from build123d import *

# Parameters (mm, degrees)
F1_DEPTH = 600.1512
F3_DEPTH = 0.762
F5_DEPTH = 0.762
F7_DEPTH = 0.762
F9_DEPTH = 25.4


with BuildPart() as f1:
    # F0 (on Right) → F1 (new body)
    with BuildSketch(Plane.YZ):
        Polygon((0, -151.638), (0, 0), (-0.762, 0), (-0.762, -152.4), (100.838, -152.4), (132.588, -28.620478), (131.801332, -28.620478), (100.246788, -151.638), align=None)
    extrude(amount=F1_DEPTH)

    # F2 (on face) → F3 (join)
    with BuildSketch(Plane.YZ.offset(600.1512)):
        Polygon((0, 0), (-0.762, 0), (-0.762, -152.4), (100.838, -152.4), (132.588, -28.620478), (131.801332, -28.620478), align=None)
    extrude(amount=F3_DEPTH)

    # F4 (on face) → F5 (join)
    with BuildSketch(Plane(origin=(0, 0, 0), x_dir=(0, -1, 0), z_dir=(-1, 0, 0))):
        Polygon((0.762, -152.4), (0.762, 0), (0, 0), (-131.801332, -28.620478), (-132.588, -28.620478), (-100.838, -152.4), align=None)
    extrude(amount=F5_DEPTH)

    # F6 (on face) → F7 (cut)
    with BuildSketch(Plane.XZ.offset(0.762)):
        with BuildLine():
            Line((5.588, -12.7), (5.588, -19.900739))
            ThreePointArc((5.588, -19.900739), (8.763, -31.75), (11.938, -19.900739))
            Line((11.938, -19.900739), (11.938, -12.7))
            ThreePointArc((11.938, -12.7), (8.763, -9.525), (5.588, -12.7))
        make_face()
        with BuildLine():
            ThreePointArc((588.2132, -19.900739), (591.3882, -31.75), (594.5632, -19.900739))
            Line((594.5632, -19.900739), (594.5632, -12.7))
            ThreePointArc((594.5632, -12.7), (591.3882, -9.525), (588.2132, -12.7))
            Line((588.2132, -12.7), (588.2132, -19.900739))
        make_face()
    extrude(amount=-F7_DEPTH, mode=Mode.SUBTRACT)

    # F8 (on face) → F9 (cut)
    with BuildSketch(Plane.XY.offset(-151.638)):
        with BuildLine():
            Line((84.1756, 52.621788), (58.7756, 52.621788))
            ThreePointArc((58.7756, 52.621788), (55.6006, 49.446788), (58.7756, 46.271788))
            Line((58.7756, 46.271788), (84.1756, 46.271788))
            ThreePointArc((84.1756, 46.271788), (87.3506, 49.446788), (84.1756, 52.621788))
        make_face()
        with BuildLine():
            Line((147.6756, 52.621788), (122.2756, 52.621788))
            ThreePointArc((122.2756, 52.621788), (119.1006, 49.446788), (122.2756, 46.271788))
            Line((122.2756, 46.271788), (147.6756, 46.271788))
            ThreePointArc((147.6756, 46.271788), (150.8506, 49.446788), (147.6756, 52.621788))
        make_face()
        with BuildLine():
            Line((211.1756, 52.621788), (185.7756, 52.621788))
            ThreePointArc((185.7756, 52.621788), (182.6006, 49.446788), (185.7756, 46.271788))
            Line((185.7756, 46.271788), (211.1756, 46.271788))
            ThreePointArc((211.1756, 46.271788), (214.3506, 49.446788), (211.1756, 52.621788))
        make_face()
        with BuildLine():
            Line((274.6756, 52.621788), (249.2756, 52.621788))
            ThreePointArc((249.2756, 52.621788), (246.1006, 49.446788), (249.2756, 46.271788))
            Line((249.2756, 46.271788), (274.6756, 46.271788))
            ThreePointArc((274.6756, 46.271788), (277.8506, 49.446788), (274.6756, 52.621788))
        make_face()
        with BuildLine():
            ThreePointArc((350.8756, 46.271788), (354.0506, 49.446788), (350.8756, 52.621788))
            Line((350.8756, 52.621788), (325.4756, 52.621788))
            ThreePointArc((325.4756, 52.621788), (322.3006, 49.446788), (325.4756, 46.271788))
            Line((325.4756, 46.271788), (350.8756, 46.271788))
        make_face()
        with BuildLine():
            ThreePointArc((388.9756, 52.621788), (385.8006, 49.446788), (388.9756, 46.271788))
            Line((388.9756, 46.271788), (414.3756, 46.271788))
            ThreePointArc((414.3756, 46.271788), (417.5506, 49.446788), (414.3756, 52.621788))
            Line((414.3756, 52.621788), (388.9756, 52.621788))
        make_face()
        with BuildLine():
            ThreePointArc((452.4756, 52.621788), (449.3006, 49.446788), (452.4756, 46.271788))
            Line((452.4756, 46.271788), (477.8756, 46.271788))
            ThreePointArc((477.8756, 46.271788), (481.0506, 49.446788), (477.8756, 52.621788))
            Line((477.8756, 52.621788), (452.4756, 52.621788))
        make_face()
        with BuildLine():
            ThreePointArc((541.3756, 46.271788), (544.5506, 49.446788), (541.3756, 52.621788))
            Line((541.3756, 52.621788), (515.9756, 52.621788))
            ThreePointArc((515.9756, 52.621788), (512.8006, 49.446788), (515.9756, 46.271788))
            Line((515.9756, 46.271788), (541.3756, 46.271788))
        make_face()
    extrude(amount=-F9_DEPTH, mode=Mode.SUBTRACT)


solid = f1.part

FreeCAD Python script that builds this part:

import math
import FreeCAD as App
import Part
import Sketcher
Q = App.Units.Quantity

doc = App.newDocument("Part")
params = doc.addObject("Spreadsheet::Sheet", "Params")
for row, (alias, value) in enumerate([
    ("sketch1_width", "4 in"),
    ("sketch1_height", "6 in"),
    ("sketch1_length", "5 in"),
    ("sketch1_width2", "0.03 in"),
    ("sketch1_height2", "5.97 in"),
    ("pad1_length", "23.628 in"),
    ("sketch2_width", "4 in"),
    ("sketch2_height", "6 in"),
    ("sketch2_width2", "0.03 in"),
    ("pad2_length", "0.03 in"),
    ("sketch3_width", "4 in"),
    ("sketch3_height", "6 in"),
    ("sketch3_width2", "0.03 in"),
    ("pad3_length", "0.03 in"),
    ("sketch4_radius", "0.25 in"),
    ("sketch4_radius2", "0.125 in"),
    ("pocket1_length", "0.03 in"),
    ("sketch5_width", "1 in"),
    ("sketch5_radius", "0.125 in"),
    ("pocket2_length", "1 in"),
], start=1):
    params.set(f"A{row}", alias)
    params.set(f"B{row}", "=" + value)
    params.setAlias(f"B{row}", alias)

body = doc.addObject("PartDesign::Body", "Body")

sketch1 = body.newObject("Sketcher::SketchObject", "Sketch")
sketch1.AttachmentSupport = (doc.getObject("YZ_Plane"), [""])
sketch1.MapMode = "FlatFace"
sketch1.addGeometry([
    Part.LineSegment(App.Vector(0, -151.638, 0), App.Vector(0, 0, 0)),
    Part.LineSegment(App.Vector(0, 0, 0), App.Vector(-0.762, 0, 0)),
    Part.LineSegment(App.Vector(-0.762, 0, 0), App.Vector(-0.762, -152.4, 0)),
    Part.LineSegment(App.Vector(-0.762, -152.4, 0), App.Vector(100.838, -152.4, 0)),
    Part.LineSegment(App.Vector(100.838, -152.4, 0), App.Vector(132.588, -28.620478, 0)),
    Part.LineSegment(App.Vector(132.588, -28.620478, 0), App.Vector(131.801332, -28.620478, 0)),
    Part.LineSegment(App.Vector(131.801332, -28.620478, 0), App.Vector(100.246788, -151.638, 0)),
    Part.LineSegment(App.Vector(100.246788, -151.638, 0), App.Vector(0, -151.638, 0)),
], False)
sketch1.addConstraint([
    Sketcher.Constraint("Coincident", 0, 2, 1, 1),
    Sketcher.Constraint("Coincident", 1, 2, 2, 1),
    Sketcher.Constraint("Coincident", 2, 2, 3, 1),
    Sketcher.Constraint("Coincident", 3, 2, 4, 1),
    Sketcher.Constraint("Coincident", 4, 2, 5, 1),
    Sketcher.Constraint("Coincident", 5, 2, 6, 1),
    Sketcher.Constraint("Coincident", 6, 2, 7, 1),
    Sketcher.Constraint("Coincident", 7, 2, 0, 1),
    Sketcher.Constraint("Vertical", 0),
    Sketcher.Constraint("Horizontal", 1),
    Sketcher.Constraint("Vertical", 2),
    Sketcher.Constraint("Horizontal", 3),
    Sketcher.Constraint("Horizontal", 5),
    Sketcher.Constraint("Horizontal", 7),
    Sketcher.Constraint("Coincident", 0, 2, -1, 1),
    Sketcher.Constraint("Parallel", 4, 6),
    Sketcher.Constraint("DistanceX", 3, 1, 3, 2, Q("4 in")),
    Sketcher.Constraint("DistanceY", 2, 2, 2, 1, Q("6 in")),
    Sketcher.Constraint("Distance", 6, Q("5 in")),
    Sketcher.Constraint("DistanceX", 1, 2, 1, 1, Q("0.03 in")),
    Sketcher.Constraint("DistanceY", 0, 1, 0, 2, Q("5.97 in")),
    Sketcher.Constraint("DistanceX", -1, 1, 4, 2, Q("5.22 in")),
    Sketcher.Constraint("DistanceX", 5, 2, 5, 1, 0.786668),
])
sketch1.setExpression("Constraints[16]", "Params.sketch1_width")
sketch1.setExpression("Constraints[17]", "Params.sketch1_height")
sketch1.setExpression("Constraints[18]", "Params.sketch1_length")
sketch1.setExpression("Constraints[19]", "Params.sketch1_width2")
sketch1.setExpression("Constraints[20]", "Params.sketch1_height2")
pad1 = body.newObject("PartDesign::Pad", "Pad")
pad1.Profile = sketch1
pad1.setExpression("Length", "Params.pad1_length")

sketch2 = body.newObject("Sketcher::SketchObject", "Sketch001")
sketch2.AttachmentSupport = (doc.getObject("YZ_Plane"), [""])
sketch2.MapMode = "FlatFace"
sketch2.AttachmentOffset = App.Placement(App.Vector(0, 0, 23.628 * 25.4), App.Rotation())
sketch2.addGeometry([
    Part.LineSegment(App.Vector(0, 0, 0), App.Vector(-0.762, 0, 0)),
    Part.LineSegment(App.Vector(-0.762, 0, 0), App.Vector(-0.762, -152.4, 0)),
    Part.LineSegment(App.Vector(-0.762, -152.4, 0), App.Vector(100.838, -152.4, 0)),
    Part.LineSegment(App.Vector(100.838, -152.4, 0), App.Vector(132.588, -28.620478, 0)),
    Part.LineSegment(App.Vector(132.588, -28.620478, 0), App.Vector(131.801332, -28.620478, 0)),
    Part.LineSegment(App.Vector(131.801332, -28.620478, 0), App.Vector(0, 0, 0)),
], False)
sketch2.addConstraint([
    Sketcher.Constraint("Coincident", 0, 2, 1, 1),
    Sketcher.Constraint("Coincident", 1, 2, 2, 1),
    Sketcher.Constraint("Coincident", 2, 2, 3, 1),
    Sketcher.Constraint("Coincident", 3, 2, 4, 1),
    Sketcher.Constraint("Coincident", 4, 2, 5, 1),
    Sketcher.Constraint("Coincident", 5, 2, 0, 1),
    Sketcher.Constraint("Horizontal", 0),
    Sketcher.Constraint("Vertical", 1),
    Sketcher.Constraint("Horizontal", 2),
    Sketcher.Constraint("Horizontal", 4),
    Sketcher.Constraint("Coincident", 5, 2, -1, 1),
    Sketcher.Constraint("DistanceX", 2, 1, 2, 2, Q("4 in")),
    Sketcher.Constraint("DistanceY", 1, 2, 1, 1, Q("6 in")),
    Sketcher.Constraint("DistanceX", 0, 2, 0, 1, Q("0.03 in")),
    Sketcher.Constraint("DistanceX", -1, 1, 3, 2, Q("5.22 in")),
    Sketcher.Constraint("Distance", 3, 127.786668),
    Sketcher.Constraint("DistanceX", 4, 2, 4, 1, 0.786668),
])
sketch2.setExpression("Constraints[11]", "Params.sketch2_width")
sketch2.setExpression("Constraints[12]", "Params.sketch2_height")
sketch2.setExpression("Constraints[13]", "Params.sketch2_width2")
pad2 = body.newObject("PartDesign::Pad", "Pad001")
pad2.Profile = sketch2
pad2.setExpression("Length", "Params.pad2_length")

sketch3 = body.newObject("Sketcher::SketchObject", "Sketch002")
sketch3.AttachmentSupport = (doc.getObject("YZ_Plane"), [""])
sketch3.MapMode = "FlatFace"
sketch3.addGeometry([
    Part.LineSegment(App.Vector(-0.762, -152.4, 0), App.Vector(-0.762, 0, 0)),
    Part.LineSegment(App.Vector(-0.762, 0, 0), App.Vector(0, 0, 0)),
    Part.LineSegment(App.Vector(0, 0, 0), App.Vector(131.801332, -28.620478, 0)),
    Part.LineSegment(App.Vector(131.801332, -28.620478, 0), App.Vector(132.588, -28.620478, 0)),
    Part.LineSegment(App.Vector(132.588, -28.620478, 0), App.Vector(100.838, -152.4, 0)),
    Part.LineSegment(App.Vector(100.838, -152.4, 0), App.Vector(-0.762, -152.4, 0)),
], False)
sketch3.addConstraint([
    Sketcher.Constraint("Coincident", 0, 2, 1, 1),
    Sketcher.Constraint("Coincident", 1, 2, 2, 1),
    Sketcher.Constraint("Coincident", 2, 2, 3, 1),
    Sketcher.Constraint("Coincident", 3, 2, 4, 1),
    Sketcher.Constraint("Coincident", 4, 2, 5, 1),
    Sketcher.Constraint("Coincident", 5, 2, 0, 1),
    Sketcher.Constraint("Vertical", 0),
    Sketcher.Constraint("Horizontal", 1),
    Sketcher.Constraint("Horizontal", 3),
    Sketcher.Constraint("Horizontal", 5),
    Sketcher.Constraint("Coincident", 1, 2, -1, 1),
    Sketcher.Constraint("DistanceX", 5, 2, 5, 1, Q("4 in")),
    Sketcher.Constraint("DistanceY", 0, 1, 0, 2, Q("6 in")),
    Sketcher.Constraint("DistanceX", 1, 1, 1, 2, Q("0.03 in")),
    Sketcher.Constraint("DistanceX", -1, 1, 3, 2, Q("5.22 in")),
    Sketcher.Constraint("Distance", 4, 127.786668),
    Sketcher.Constraint("DistanceX", 3, 1, 3, 2, 0.786668),
])
sketch3.setExpression("Constraints[11]", "Params.sketch3_width")
sketch3.setExpression("Constraints[12]", "Params.sketch3_height")
sketch3.setExpression("Constraints[13]", "Params.sketch3_width2")
pad3 = body.newObject("PartDesign::Pad", "Pad002")
pad3.Profile = sketch3
pad3.setExpression("Length", "Params.pad3_length")
pad3.Reversed = True

sketch4 = body.newObject("Sketcher::SketchObject", "Sketch003")
sketch4.AttachmentSupport = (doc.getObject("XZ_Plane"), [""])
sketch4.MapMode = "FlatFace"
sketch4.AttachmentOffset = App.Placement(App.Vector(0, 0, 0.03 * 25.4), App.Rotation())
sketch4.addGeometry([
    Part.LineSegment(App.Vector(5.588, -12.7, 0), App.Vector(5.588, -19.900739, 0)),
    Part.ArcOfCircle(Part.Circle(App.Vector(8.763, -25.4, 0), App.Vector(0, 0, 1), 6.35), math.radians(120.000001), math.radians(419.999999)),
    Part.LineSegment(App.Vector(11.938, -19.900739, 0), App.Vector(11.938, -12.7, 0)),
    Part.ArcOfCircle(Part.Circle(App.Vector(8.763, -12.7, 0), App.Vector(0, 0, 1), 3.175), math.radians(0), math.radians(180)),
    Part.ArcOfCircle(Part.Circle(App.Vector(591.3882, -25.4, 0), App.Vector(0, 0, 1), 6.35), math.radians(120.000001), math.radians(419.999999)),
    Part.LineSegment(App.Vector(594.5632, -19.900739, 0), App.Vector(594.5632, -12.7, 0)),
    Part.ArcOfCircle(Part.Circle(App.Vector(591.3882, -12.7, 0), App.Vector(0, 0, 1), 3.175), math.radians(0), math.radians(180)),
    Part.LineSegment(App.Vector(588.2132, -12.7, 0), App.Vector(588.2132, -19.900739, 0)),
], False)
sketch4.addConstraint([
    Sketcher.Constraint("Coincident", 0, 2, 1, 1),
    Sketcher.Constraint("Coincident", 1, 2, 2, 1),
    Sketcher.Constraint("Tangent", 2, 2, 3, 1),
    Sketcher.Constraint("Tangent", 3, 2, 0, 1),
    Sketcher.Constraint("Coincident", 4, 2, 5, 1),
    Sketcher.Constraint("Tangent", 5, 2, 6, 1),
    Sketcher.Constraint("Tangent", 6, 2, 7, 1),
    Sketcher.Constraint("Coincident", 7, 2, 4, 1),
    Sketcher.Constraint("Vertical", 0),
    Sketcher.Constraint("Vertical", 2),
    Sketcher.Constraint("Vertical", 5),
    Sketcher.Constraint("Vertical", 7),
    Sketcher.Constraint("Equal", 1, 4),
    Sketcher.Constraint("Equal", 3, 6),
    Sketcher.Constraint("Horizontal", 1, 3, 4, 3),
    Sketcher.Constraint("Horizontal", 3, 3, 6, 3),
    Sketcher.Constraint("Horizontal", 0, 2, 1, 2),
    Sketcher.Constraint("Horizontal", 1, 2, 4, 2),
    Sketcher.Constraint("Radius", 1, Q("0.25 in")),
    Sketcher.Constraint("DistanceY", 1, 3, -1, 1, Q("1 in")),
    Sketcher.Constraint("Radius", 3, Q("0.125 in")),
    Sketcher.Constraint("DistanceY", 3, 3, -1, 1, Q("0.5 in")),
    Sketcher.Constraint("DistanceX", -1, 1, 0, 2, Q("0.22 in")),
    Sketcher.Constraint("DistanceX", -1, 1, 4, 3, Q("23.283 in")),
])
sketch4.setExpression("Constraints[18]", "Params.sketch4_radius")
sketch4.setExpression("Constraints[20]", "Params.sketch4_radius2")
pocket1 = body.newObject("PartDesign::Pocket", "Pocket")
pocket1.Profile = sketch4
pocket1.setExpression("Length", "Params.pocket1_length")

sketch5 = body.newObject("Sketcher::SketchObject", "Sketch004")
sketch5.AttachmentSupport = (doc.getObject("XY_Plane"), [""])
sketch5.MapMode = "FlatFace"
sketch5.AttachmentOffset = App.Placement(App.Vector(0, 0, -5.97 * 25.4), App.Rotation())
sketch5.addGeometry([
    Part.LineSegment(App.Vector(84.1756, 52.621788, 0), App.Vector(58.7756, 52.621788, 0)),
    Part.ArcOfCircle(Part.Circle(App.Vector(58.7756, 49.446788, 0), App.Vector(0, 0, 1), 3.175), math.radians(90), math.radians(270)),
    Part.LineSegment(App.Vector(58.7756, 46.271788, 0), App.Vector(84.1756, 46.271788, 0)),
    Part.ArcOfCircle(Part.Circle(App.Vector(84.1756, 49.446788, 0), App.Vector(0, 0, 1), 3.175), math.radians(-90), math.radians(90)),
    Part.LineSegment(App.Vector(147.6756, 52.621788, 0), App.Vector(122.2756, 52.621788, 0)),
    Part.ArcOfCircle(Part.Circle(App.Vector(122.2756, 49.446788, 0), App.Vector(0, 0, 1), 3.175), math.radians(90), math.radians(270)),
    Part.LineSegment(App.Vector(122.2756, 46.271788, 0), App.Vector(147.6756, 46.271788, 0)),
    Part.ArcOfCircle(Part.Circle(App.Vector(147.6756, 49.446788, 0), App.Vector(0, 0, 1), 3.175), math.radians(-90), math.radians(90)),
    Part.LineSegment(App.Vector(211.1756, 52.621788, 0), App.Vector(185.7756, 52.621788, 0)),
    Part.ArcOfCircle(Part.Circle(App.Vector(185.7756, 49.446788, 0), App.Vector(0, 0, 1), 3.175), math.radians(90), math.radians(270)),
    Part.LineSegment(App.Vector(185.7756, 46.271788, 0), App.Vector(211.1756, 46.271788, 0)),
    Part.ArcOfCircle(Part.Circle(App.Vector(211.1756, 49.446788, 0), App.Vector(0, 0, 1), 3.175), math.radians(-90), math.radians(90)),
    Part.LineSegment(App.Vector(274.6756, 52.621788, 0), App.Vector(249.2756, 52.621788, 0)),
    Part.ArcOfCircle(Part.Circle(App.Vector(249.2756, 49.446788, 0), App.Vector(0, 0, 1), 3.175), math.radians(90), math.radians(270)),
    Part.LineSegment(App.Vector(249.2756, 46.271788, 0), App.Vector(274.6756, 46.271788, 0)),
    Part.ArcOfCircle(Part.Circle(App.Vector(274.6756, 49.446788, 0), App.Vector(0, 0, 1), 3.175), math.radians(-90), math.radians(90)),
    Part.ArcOfCircle(Part.Circle(App.Vector(350.8756, 49.446788, 0), App.Vector(0, 0, 1), 3.175), math.radians(-90), math.radians(90)),
    Part.LineSegment(App.Vector(350.8756, 52.621788, 0), App.Vector(325.4756, 52.621788, 0)),
    Part.ArcOfCircle(Part.Circle(App.Vector(325.4756, 49.446788, 0), App.Vector(0, 0, 1), 3.175), math.radians(90), math.radians(270)),
    Part.LineSegment(App.Vector(325.4756, 46.271788, 0), App.Vector(350.8756, 46.271788, 0)),
    Part.ArcOfCircle(Part.Circle(App.Vector(388.9756, 49.446788, 0), App.Vector(0, 0, 1), 3.175), math.radians(90), math.radians(270)),
    Part.LineSegment(App.Vector(388.9756, 46.271788, 0), App.Vector(414.3756, 46.271788, 0)),
    Part.ArcOfCircle(Part.Circle(App.Vector(414.3756, 49.446788, 0), App.Vector(0, 0, 1), 3.175), math.radians(-90), math.radians(90)),
    Part.LineSegment(App.Vector(414.3756, 52.621788, 0), App.Vector(388.9756, 52.621788, 0)),
    Part.ArcOfCircle(Part.Circle(App.Vector(452.4756, 49.446788, 0), App.Vector(0, 0, 1), 3.175), math.radians(90), math.radians(270)),
    Part.LineSegment(App.Vector(452.4756, 46.271788, 0), App.Vector(477.8756, 46.271788, 0)),
    Part.ArcOfCircle(Part.Circle(App.Vector(477.8756, 49.446788, 0), App.Vector(0, 0, 1), 3.175), math.radians(-90), math.radians(90)),
    Part.LineSegment(App.Vector(477.8756, 52.621788, 0), App.Vector(452.4756, 52.621788, 0)),
    Part.ArcOfCircle(Part.Circle(App.Vector(541.3756, 49.446788, 0), App.Vector(0, 0, 1), 3.175), math.radians(-90), math.radians(90)),
    Part.LineSegment(App.Vector(541.3756, 52.621788, 0), App.Vector(515.9756, 52.621788, 0)),
    Part.ArcOfCircle(Part.Circle(App.Vector(515.9756, 49.446788, 0), App.Vector(0, 0, 1), 3.175), math.radians(90), math.radians(270)),
    Part.LineSegment(App.Vector(515.9756, 46.271788, 0), App.Vector(541.3756, 46.271788, 0)),
], False)
sketch5.addConstraint([
    Sketcher.Constraint("Tangent", 0, 2, 1, 1),
    Sketcher.Constraint("Tangent", 1, 2, 2, 1),
    Sketcher.Constraint("Tangent", 2, 2, 3, 1),
    Sketcher.Constraint("Tangent", 3, 2, 0, 1),
    Sketcher.Constraint("Tangent", 4, 2, 5, 1),
    Sketcher.Constraint("Tangent", 5, 2, 6, 1),
    Sketcher.Constraint("Tangent", 6, 2, 7, 1),
    Sketcher.Constraint("Tangent", 7, 2, 4, 1),
    Sketcher.Constraint("Tangent", 8, 2, 9, 1),
    Sketcher.Constraint("Tangent", 9, 2, 10, 1),
    Sketcher.Constraint("Tangent", 10, 2, 11, 1),
    Sketcher.Constraint("Tangent", 11, 2, 8, 1),
    Sketcher.Constraint("Tangent", 12, 2, 13, 1),
    Sketcher.Constraint("Tangent", 13, 2, 14, 1),
    Sketcher.Constraint("Tangent", 14, 2, 15, 1),
    Sketcher.Constraint("Tangent", 15, 2, 12, 1),
    Sketcher.Constraint("Tangent", 16, 2, 17, 1),
    Sketcher.Constraint("Tangent", 17, 2, 18, 1),
    Sketcher.Constraint("Tangent", 18, 2, 19, 1),
    Sketcher.Constraint("Tangent", 19, 2, 16, 1),
    Sketcher.Constraint("Tangent", 20, 2, 21, 1),
    Sketcher.Constraint("Tangent", 21, 2, 22, 1),
    Sketcher.Constraint("Tangent", 22, 2, 23, 1),
    Sketcher.Constraint("Tangent", 23, 2, 20, 1),
    Sketcher.Constraint("Tangent", 24, 2, 25, 1),
    Sketcher.Constraint("Tangent", 25, 2, 26, 1),
    Sketcher.Constraint("Tangent", 26, 2, 27, 1),
    Sketcher.Constraint("Tangent", 27, 2, 24, 1),
    Sketcher.Constraint("Tangent", 28, 2, 29, 1),
    Sketcher.Constraint("Tangent", 29, 2, 30, 1),
    Sketcher.Constraint("Tangent", 30, 2, 31, 1),
    Sketcher.Constraint("Tangent", 31, 2, 28, 1),
    Sketcher.Constraint("Horizontal", 0),
    Sketcher.Constraint("Horizontal", 2),
    Sketcher.Constraint("Horizontal", 4),
    Sketcher.Constraint("Horizontal", 6),
    Sketcher.Constraint("Horizontal", 8),
    Sketcher.Constraint("Horizontal", 10),
    Sketcher.Constraint("Horizontal", 12),
    Sketcher.Constraint("Horizontal", 14),
    Sketcher.Constraint("Horizontal", 17),
    Sketcher.Constraint("Horizontal", 19),
    Sketcher.Constraint("Horizontal", 21),
    Sketcher.Constraint("Horizontal", 23),
    Sketcher.Constraint("Horizontal", 25),
    Sketcher.Constraint("Horizontal", 27),
    Sketcher.Constraint("Horizontal", 29),
    Sketcher.Constraint("Horizontal", 31),
    Sketcher.Constraint("Equal", 3, 5),
    Sketcher.Constraint("Equal", 7, 9),
    Sketcher.Constraint("Equal", 11, 13),
    Sketcher.Constraint("Equal", 15, 16),
    Sketcher.Constraint("Equal", 18, 20),
    Sketcher.Constraint("Equal", 22, 24),
    Sketcher.Constraint("Equal", 26, 28),
    Sketcher.Constraint("Horizontal", 3, 3, 5, 3),
    Sketcher.Constraint("Horizontal", 7, 3, 9, 3),
    Sketcher.Constraint("Horizontal", 11, 3, 13, 3),
    Sketcher.Constraint("Horizontal", 15, 3, 16, 3),
    Sketcher.Constraint("Horizontal", 18, 3, 20, 3),
    Sketcher.Constraint("Horizontal", 22, 3, 24, 3),
    Sketcher.Constraint("Horizontal", 26, 3, 28, 3),
    Sketcher.Constraint("Equal", 2, 4),
    Sketcher.Constraint("Equal", 6, 8),
    Sketcher.Constraint("Equal", 10, 12),
    Sketcher.Constraint("Equal", 14, 17),
    Sketcher.Constraint("Equal", 19, 21),
    Sketcher.Constraint("Equal", 23, 25),
    Sketcher.Constraint("Equal", 27, 29),
    Sketcher.Constraint("DistanceX", 0, 2, 0, 1, Q("1 in")),
    Sketcher.Constraint("Radius", 1, Q("0.125 in")),
    Sketcher.Constraint("DistanceX", 3, 3, 9, 3, Q("4 in")),
    Sketcher.Constraint("DistanceX", 7, 3, 13, 3, Q("4 in")),
    Sketcher.Constraint("DistanceX", 15, 3, 16, 3, Q("3 in")),
    Sketcher.Constraint("DistanceX", 11, 3, 20, 3, Q("7 in")),
    Sketcher.Constraint("DistanceX", 16, 3, 24, 3, Q("4 in")),
    Sketcher.Constraint("DistanceX", 22, 3, 28, 3, Q("5 in")),
    Sketcher.Constraint("DistanceX", 3, 3, 5, 3, Q("1.5 in")),
    Sketcher.Constraint("DistanceX", -1, 1, 1, 3, Q("2.314 in")),
    Sketcher.Constraint("DistanceY", -1, 1, 0, 2, 52.621788),
])
sketch5.setExpression("Constraints[69]", "Params.sketch5_width")
sketch5.setExpression("Constraints[70]", "Params.sketch5_radius")
pocket2 = body.newObject("PartDesign::Pocket", "Pocket001")
pocket2.Profile = sketch5
pocket2.setExpression("Length", "Params.pocket2_length")

doc.recompute()
